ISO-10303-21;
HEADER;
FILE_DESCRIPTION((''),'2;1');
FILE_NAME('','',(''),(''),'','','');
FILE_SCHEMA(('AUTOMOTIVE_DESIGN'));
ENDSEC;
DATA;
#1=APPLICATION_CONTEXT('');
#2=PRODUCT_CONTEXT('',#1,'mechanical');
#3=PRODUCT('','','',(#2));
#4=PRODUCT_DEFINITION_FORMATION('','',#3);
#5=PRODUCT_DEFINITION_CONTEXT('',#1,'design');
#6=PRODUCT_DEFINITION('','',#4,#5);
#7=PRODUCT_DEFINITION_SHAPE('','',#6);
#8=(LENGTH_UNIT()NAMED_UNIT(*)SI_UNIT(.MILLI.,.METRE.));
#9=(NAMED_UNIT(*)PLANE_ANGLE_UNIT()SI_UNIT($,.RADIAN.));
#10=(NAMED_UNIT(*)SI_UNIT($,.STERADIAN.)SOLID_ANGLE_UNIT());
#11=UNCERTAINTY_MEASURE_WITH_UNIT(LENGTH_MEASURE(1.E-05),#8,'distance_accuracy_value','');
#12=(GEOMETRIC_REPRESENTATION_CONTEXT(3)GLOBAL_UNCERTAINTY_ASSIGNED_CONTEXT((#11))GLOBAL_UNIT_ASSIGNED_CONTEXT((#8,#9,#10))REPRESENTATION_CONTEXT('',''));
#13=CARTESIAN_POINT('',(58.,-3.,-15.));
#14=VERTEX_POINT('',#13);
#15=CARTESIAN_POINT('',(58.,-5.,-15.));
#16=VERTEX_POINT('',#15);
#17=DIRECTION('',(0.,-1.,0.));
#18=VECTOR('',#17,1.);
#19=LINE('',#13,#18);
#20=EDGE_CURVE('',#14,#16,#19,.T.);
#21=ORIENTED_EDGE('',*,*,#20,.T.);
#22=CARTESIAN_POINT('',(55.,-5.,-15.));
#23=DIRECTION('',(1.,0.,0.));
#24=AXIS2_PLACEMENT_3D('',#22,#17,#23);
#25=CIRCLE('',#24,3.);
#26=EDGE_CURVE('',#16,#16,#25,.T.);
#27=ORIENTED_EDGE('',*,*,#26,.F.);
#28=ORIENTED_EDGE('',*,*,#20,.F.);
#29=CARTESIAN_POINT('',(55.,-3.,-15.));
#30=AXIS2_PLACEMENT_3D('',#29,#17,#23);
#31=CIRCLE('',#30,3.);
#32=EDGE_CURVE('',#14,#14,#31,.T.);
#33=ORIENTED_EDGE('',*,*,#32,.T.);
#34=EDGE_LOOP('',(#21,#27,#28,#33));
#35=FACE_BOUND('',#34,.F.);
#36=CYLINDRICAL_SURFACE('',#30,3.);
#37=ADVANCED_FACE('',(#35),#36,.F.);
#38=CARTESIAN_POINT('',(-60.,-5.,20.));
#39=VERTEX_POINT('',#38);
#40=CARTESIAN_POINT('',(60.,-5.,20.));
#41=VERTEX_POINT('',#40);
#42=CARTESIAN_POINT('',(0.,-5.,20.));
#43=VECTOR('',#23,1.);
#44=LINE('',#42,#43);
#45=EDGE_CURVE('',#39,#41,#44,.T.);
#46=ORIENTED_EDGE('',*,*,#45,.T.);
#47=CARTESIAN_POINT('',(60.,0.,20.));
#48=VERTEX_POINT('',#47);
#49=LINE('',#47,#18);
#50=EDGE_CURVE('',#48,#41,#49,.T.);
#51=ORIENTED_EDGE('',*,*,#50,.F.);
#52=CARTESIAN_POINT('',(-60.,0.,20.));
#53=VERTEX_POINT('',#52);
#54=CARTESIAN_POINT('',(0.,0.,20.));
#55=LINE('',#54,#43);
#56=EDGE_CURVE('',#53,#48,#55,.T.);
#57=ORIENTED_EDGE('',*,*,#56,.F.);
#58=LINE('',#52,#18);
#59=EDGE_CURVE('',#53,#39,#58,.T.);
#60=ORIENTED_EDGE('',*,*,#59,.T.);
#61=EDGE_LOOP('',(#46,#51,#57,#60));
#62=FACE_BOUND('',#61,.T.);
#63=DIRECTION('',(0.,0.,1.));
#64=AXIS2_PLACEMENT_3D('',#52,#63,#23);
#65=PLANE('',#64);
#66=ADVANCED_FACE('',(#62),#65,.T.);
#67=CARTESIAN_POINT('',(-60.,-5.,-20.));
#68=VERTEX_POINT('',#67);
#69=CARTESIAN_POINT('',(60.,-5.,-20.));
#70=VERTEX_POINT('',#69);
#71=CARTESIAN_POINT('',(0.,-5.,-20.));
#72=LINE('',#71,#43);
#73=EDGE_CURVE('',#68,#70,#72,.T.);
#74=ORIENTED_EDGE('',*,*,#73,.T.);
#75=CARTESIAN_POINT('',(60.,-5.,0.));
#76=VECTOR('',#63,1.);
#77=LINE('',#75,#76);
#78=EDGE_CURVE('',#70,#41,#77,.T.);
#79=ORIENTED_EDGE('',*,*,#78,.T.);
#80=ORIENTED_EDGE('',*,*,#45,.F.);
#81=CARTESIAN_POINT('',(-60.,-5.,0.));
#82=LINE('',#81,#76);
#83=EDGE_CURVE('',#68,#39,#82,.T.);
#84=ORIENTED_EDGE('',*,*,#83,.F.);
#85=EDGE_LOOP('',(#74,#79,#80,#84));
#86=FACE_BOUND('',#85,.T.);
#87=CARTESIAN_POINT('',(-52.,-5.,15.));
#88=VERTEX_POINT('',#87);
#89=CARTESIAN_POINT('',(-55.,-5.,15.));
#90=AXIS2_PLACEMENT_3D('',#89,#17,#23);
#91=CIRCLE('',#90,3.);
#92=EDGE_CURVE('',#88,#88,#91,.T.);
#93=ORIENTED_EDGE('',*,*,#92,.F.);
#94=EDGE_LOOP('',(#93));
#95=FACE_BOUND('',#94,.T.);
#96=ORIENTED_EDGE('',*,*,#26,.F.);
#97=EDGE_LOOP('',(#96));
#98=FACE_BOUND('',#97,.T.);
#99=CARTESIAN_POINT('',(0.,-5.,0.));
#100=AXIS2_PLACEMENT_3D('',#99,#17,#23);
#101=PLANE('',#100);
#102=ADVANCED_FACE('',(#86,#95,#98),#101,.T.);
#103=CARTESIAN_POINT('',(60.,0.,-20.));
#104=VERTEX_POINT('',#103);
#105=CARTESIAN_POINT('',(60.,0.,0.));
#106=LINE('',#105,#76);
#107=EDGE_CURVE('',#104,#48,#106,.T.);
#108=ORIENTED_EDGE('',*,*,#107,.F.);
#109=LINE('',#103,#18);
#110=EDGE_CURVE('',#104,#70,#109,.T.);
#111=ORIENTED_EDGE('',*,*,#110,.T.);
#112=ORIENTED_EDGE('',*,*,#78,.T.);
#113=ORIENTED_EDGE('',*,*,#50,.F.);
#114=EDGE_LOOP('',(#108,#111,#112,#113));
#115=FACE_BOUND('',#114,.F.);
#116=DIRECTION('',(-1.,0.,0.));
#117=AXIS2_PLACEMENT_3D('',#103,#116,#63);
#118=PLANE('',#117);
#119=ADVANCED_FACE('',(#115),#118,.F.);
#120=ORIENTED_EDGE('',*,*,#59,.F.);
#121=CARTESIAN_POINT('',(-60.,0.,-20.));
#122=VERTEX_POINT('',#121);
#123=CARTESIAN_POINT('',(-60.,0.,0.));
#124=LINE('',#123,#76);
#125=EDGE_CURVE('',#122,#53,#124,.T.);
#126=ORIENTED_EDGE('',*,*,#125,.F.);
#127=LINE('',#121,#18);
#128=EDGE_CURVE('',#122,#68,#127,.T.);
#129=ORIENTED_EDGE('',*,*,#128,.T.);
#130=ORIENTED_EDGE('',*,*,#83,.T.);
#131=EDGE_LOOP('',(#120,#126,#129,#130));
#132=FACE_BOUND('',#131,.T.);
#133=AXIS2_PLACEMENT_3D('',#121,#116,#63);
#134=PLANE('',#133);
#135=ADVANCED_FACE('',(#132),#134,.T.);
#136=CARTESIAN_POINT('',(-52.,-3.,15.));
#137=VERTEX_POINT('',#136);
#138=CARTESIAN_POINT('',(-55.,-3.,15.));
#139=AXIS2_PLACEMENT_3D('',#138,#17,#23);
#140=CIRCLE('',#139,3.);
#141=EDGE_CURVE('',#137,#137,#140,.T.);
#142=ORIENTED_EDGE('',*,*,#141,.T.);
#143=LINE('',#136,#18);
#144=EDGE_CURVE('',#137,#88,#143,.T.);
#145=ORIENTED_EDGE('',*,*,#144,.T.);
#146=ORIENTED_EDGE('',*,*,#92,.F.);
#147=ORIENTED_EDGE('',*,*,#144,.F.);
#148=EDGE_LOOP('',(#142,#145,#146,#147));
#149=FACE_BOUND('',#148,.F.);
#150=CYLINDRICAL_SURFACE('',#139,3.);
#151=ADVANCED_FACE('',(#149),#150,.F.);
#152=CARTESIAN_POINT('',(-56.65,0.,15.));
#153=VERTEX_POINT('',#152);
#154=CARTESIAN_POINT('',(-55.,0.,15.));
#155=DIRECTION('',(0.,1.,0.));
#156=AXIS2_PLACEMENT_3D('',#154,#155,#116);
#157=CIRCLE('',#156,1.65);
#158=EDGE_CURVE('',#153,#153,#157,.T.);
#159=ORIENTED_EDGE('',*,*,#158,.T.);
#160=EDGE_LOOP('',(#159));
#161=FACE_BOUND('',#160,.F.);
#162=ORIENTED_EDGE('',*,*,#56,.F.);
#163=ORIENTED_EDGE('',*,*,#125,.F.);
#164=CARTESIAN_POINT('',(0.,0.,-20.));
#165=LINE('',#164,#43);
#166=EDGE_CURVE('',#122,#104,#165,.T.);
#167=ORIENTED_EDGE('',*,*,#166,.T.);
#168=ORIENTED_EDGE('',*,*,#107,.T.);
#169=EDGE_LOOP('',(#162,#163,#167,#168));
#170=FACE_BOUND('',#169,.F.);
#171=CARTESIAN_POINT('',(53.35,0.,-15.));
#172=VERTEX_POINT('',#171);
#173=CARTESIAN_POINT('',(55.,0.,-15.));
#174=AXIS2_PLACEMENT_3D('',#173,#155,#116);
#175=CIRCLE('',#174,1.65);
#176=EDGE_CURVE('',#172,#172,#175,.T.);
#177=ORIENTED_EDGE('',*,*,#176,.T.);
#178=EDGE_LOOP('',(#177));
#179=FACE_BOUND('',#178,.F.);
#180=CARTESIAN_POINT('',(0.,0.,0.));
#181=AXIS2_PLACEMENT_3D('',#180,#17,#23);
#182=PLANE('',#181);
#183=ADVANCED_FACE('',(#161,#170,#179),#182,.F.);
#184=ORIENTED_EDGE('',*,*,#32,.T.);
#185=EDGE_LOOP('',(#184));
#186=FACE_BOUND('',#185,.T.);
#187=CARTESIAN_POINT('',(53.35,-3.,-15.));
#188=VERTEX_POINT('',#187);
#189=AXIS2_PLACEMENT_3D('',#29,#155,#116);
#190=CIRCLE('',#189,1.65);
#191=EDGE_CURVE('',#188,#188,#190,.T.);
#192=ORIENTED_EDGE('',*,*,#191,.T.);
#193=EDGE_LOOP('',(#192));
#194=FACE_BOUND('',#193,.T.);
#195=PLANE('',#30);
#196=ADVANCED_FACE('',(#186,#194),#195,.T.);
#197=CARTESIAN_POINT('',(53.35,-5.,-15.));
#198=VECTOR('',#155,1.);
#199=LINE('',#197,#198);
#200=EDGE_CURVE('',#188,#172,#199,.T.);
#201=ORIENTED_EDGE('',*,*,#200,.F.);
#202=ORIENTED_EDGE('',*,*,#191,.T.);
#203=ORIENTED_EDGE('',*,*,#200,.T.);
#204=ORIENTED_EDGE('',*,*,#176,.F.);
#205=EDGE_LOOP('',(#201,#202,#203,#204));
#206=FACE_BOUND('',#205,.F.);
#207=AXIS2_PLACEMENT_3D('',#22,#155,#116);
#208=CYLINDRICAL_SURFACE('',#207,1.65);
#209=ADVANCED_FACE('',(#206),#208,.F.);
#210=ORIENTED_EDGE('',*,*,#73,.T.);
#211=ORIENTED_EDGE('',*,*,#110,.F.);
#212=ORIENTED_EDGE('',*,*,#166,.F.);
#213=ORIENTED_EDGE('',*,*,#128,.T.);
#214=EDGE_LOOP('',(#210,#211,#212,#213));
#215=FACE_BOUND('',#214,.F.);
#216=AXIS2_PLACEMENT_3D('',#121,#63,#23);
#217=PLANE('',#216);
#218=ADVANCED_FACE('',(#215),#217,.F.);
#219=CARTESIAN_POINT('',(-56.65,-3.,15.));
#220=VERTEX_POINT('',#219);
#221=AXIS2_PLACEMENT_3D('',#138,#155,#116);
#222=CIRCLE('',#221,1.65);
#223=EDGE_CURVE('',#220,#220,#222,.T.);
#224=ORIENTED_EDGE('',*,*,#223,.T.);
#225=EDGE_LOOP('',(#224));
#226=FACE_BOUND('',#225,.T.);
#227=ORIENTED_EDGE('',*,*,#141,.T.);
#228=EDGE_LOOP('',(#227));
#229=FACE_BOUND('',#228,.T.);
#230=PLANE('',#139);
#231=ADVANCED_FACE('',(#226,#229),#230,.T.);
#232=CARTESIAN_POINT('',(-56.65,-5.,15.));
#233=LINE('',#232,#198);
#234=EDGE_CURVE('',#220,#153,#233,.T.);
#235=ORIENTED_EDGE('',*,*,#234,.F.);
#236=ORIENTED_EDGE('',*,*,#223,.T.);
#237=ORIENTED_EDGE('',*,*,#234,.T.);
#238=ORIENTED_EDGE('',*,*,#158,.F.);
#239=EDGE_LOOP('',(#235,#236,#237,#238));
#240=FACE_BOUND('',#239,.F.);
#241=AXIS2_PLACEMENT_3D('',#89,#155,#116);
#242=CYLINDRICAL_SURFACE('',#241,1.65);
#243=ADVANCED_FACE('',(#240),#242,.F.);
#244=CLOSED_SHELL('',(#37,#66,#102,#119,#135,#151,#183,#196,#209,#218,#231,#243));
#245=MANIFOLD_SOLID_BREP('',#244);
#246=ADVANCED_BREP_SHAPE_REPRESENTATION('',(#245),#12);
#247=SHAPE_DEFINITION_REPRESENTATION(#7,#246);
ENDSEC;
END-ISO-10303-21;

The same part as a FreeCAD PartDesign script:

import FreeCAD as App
import Part
import Sketcher

V = App.Vector


def add_polygon(sketch, points):
    """Adds a closed chain of lines whose ends are joined by coincident constraints."""
    first, n = sketch.GeometryCount, len(points)
    for a, b in zip(points, points[1:] + points[:1]):
        sketch.addGeometry(Part.LineSegment(App.Vector(*a, 0), App.Vector(*b, 0)), False)
    for i in range(n):
        sketch.addConstraint(Sketcher.Constraint("Coincident", first + i, 2, first + (i + 1) % n, 1))

doc = App.newDocument("Part")
body = doc.addObject("PartDesign::Body", "Body")

sketch1 = body.newObject("Sketcher::SketchObject", "Sketch")
sketch1.AttachmentSupport = (doc.getObject("XZ_Plane"), [""])
sketch1.MapMode = "FlatFace"
add_polygon(sketch1, [(-60, 20), (-60, -20), (60, -20), (60, 20)])
sketch1.addConstraint(Sketcher.Constraint("Vertical", 0))
sketch1.addConstraint(Sketcher.Constraint("Horizontal", 1))
sketch1.addConstraint(Sketcher.Constraint("Vertical", 2))
sketch1.addConstraint(Sketcher.Constraint("Horizontal", 3))
sketch1.addConstraint(Sketcher.Constraint("Symmetric", 0, 2, 2, 2, -1, 1))
sketch1.addConstraint(Sketcher.Constraint("DistanceX", 1, 1, 1, 2, 120.0))
sketch1.addConstraint(Sketcher.Constraint("DistanceY", 0, 2, 0, 1, 40.0))
pad1 = body.newObject("PartDesign::Pad", "Pad")
pad1.Profile = sketch1
pad1.Length = 5

sketch2 = body.newObject("Sketcher::SketchObject", "Sketch001")
sketch2.AttachmentSupport = (doc.getObject("XZ_Plane"), [""])
sketch2.MapMode = "FlatFace"
sketch2.AttachmentOffset = App.Placement(V(0, 0, 5), App.Rotation())
sketch2.addGeometry(Part.Circle(V(-55, 15, 0), V(0, 0, 1), 1.6), False)
sketch2.addGeometry(Part.Circle(V(55, -15, 0), V(0, 0, 1), 1.6), False)
sketch2.addConstraint(Sketcher.Constraint("Equal", 0, 1))
sketch2.addConstraint(Sketcher.Constraint("Symmetric", 0, 3, 1, 3, -1, 1))
sketch2.addConstraint(Sketcher.Constraint("Diameter", 0, 3.3))
sketch2.addConstraint(Sketcher.Constraint("DistanceX", 0, 3, -1, 1, 55.0))
sketch2.addConstraint(Sketcher.Constraint("DistanceY", -1, 1, 0, 3, 15.0))
doc.recompute()
hole = body.newObject("PartDesign::Hole", "Hole")
hole.Profile = sketch2
hole.ThreadType = "None"
hole.Diameter = 3.3
hole.DepthType = "ThroughAll"
hole.HoleCutType = "Counterbore"
hole.HoleCutDiameter = 6
hole.HoleCutDepth = 2

doc.recompute()
